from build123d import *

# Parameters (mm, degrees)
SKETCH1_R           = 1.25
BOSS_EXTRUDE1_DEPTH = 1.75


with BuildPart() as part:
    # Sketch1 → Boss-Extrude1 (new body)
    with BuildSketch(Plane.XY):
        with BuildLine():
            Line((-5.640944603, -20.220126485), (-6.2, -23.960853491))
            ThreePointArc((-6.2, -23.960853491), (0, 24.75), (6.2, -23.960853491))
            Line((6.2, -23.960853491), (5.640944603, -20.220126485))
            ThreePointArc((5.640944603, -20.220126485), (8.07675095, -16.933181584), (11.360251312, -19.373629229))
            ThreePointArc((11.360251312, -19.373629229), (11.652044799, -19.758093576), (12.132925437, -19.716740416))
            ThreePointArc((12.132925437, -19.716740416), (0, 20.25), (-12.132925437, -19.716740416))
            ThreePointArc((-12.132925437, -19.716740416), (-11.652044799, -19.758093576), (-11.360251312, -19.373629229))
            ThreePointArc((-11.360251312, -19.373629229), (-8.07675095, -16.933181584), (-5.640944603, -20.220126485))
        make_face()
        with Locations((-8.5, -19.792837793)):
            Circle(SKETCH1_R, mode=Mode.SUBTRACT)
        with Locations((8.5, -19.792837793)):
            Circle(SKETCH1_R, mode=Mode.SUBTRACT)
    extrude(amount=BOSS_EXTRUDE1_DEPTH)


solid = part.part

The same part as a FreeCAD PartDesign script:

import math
import FreeCAD as App
import Part
import Sketcher
Q = App.Units.Quantity

doc = App.newDocument("Part")
body = doc.addObject("PartDesign::Body", "Body")

# Sketch on XY plane
sketch1 = body.newObject("Sketcher::SketchObject", "Sketch")
sketch1.AttachmentSupport = (doc.getObject("XY_Plane"), [""])
sketch1.MapMode = "FlatFace"
sketch1.addGeometry([
    Part.LineSegment(App.Vector(-6.2, -23.960853, 0), App.Vector(-5.640945, -20.220126, 0)),  # 0
    Part.ArcOfCircle(Part.Circle(App.Vector(-8.5, -19.792838, 0), App.Vector(0, 0, 1), 2.890808), math.radians(-8.5), math.radians(171.661893)),  # 1
    Part.ArcOfCircle(Part.Circle(App.Vector(-11.854966, -19.301122, 0), App.Vector(0, 0, 1), 0.5), math.radians(-123.774015), math.radians(-8.338107)),  # 2
    Part.ArcOfCircle(Part.Circle(App.Vector(0, -1.575, 0), App.Vector(0, 0, 1), 21.825), math.radians(-56.225985), math.radians(236.225985)),  # 3
    Part.ArcOfCircle(Part.Circle(App.Vector(11.854966, -19.301122, 0), App.Vector(0, 0, 1), 0.5), math.radians(-171.661893), math.radians(-56.225985)),  # 4
    Part.ArcOfCircle(Part.Circle(App.Vector(8.5, -19.792838, 0), App.Vector(0, 0, 1), 2.890808), math.radians(8.338107), math.radians(188.5)),  # 5
    Part.LineSegment(App.Vector(5.640945, -20.220126, 0), App.Vector(6.2, -23.960853, 0)),  # 6
    Part.ArcOfCircle(Part.Circle(App.Vector(0, 0, 0), App.Vector(0, 0, 1), 24.75), math.radians(-75.4926), math.radians(255.4926)),  # 7
    Part.Circle(App.Vector(8.5, -19.792838, 0), App.Vector(0, 0, 1), 1.25),  # 8
    Part.Circle(App.Vector(-8.5, -19.792838, 0), App.Vector(0, 0, 1), 1.25),  # 9
], False)
sketch1.addConstraint([
    Sketcher.Constraint("Tangent", 0, 2, 1, 1),
    Sketcher.Constraint("Tangent", 1, 2, 2, 2),
    Sketcher.Constraint("Tangent", 2, 1, 3, 2),
    Sketcher.Constraint("Tangent", 3, 1, 4, 2),
    Sketcher.Constraint("Tangent", 4, 1, 5, 1),
    Sketcher.Constraint("Tangent", 5, 2, 6, 1),
    Sketcher.Constraint("Coincident", 6, 2, 7, 1),
    Sketcher.Constraint("Coincident", 7, 2, 0, 1),
    Sketcher.Constraint("Coincident", 7, 3, -1, 1),
    Sketcher.Constraint("Coincident", 8, 3, 5, 3),
    Sketcher.Constraint("Coincident", 9, 3, 1, 3),
    Sketcher.Constraint("Equal", 2, 4),
    Sketcher.Constraint("Equal", 1, 5),
    Sketcher.Constraint("Equal", 8, 9),
    Sketcher.Constraint("Symmetric", 2, 3, 4, 3, -2),
    Sketcher.Constraint("Symmetric", 0, 2, 5, 2, -2),
    Sketcher.Constraint("Diameter", 8, 2.5),
    Sketcher.Constraint("Radius", 2, 0.5),
    Sketcher.Constraint("Radius", 7, 24.75),
    Sketcher.Constraint("Angle", 0, Q("81.5 deg")),
    Sketcher.Constraint("Radius", 3, 21.825),
    Sketcher.Constraint("DistanceX", 1, 3, 5, 3, 17.0),
    Sketcher.Constraint("DistanceX", -1, 1, 6, 2, 6.2),
    Sketcher.Constraint("Radius", 1, 2.890808),
    Sketcher.Constraint("DistanceY", 3, 3, -1, 1, 1.575),
])
pad1 = body.newObject("PartDesign::Pad", "Pad")
pad1.Profile = sketch1
pad1.Length = 1.75

doc.recompute()
